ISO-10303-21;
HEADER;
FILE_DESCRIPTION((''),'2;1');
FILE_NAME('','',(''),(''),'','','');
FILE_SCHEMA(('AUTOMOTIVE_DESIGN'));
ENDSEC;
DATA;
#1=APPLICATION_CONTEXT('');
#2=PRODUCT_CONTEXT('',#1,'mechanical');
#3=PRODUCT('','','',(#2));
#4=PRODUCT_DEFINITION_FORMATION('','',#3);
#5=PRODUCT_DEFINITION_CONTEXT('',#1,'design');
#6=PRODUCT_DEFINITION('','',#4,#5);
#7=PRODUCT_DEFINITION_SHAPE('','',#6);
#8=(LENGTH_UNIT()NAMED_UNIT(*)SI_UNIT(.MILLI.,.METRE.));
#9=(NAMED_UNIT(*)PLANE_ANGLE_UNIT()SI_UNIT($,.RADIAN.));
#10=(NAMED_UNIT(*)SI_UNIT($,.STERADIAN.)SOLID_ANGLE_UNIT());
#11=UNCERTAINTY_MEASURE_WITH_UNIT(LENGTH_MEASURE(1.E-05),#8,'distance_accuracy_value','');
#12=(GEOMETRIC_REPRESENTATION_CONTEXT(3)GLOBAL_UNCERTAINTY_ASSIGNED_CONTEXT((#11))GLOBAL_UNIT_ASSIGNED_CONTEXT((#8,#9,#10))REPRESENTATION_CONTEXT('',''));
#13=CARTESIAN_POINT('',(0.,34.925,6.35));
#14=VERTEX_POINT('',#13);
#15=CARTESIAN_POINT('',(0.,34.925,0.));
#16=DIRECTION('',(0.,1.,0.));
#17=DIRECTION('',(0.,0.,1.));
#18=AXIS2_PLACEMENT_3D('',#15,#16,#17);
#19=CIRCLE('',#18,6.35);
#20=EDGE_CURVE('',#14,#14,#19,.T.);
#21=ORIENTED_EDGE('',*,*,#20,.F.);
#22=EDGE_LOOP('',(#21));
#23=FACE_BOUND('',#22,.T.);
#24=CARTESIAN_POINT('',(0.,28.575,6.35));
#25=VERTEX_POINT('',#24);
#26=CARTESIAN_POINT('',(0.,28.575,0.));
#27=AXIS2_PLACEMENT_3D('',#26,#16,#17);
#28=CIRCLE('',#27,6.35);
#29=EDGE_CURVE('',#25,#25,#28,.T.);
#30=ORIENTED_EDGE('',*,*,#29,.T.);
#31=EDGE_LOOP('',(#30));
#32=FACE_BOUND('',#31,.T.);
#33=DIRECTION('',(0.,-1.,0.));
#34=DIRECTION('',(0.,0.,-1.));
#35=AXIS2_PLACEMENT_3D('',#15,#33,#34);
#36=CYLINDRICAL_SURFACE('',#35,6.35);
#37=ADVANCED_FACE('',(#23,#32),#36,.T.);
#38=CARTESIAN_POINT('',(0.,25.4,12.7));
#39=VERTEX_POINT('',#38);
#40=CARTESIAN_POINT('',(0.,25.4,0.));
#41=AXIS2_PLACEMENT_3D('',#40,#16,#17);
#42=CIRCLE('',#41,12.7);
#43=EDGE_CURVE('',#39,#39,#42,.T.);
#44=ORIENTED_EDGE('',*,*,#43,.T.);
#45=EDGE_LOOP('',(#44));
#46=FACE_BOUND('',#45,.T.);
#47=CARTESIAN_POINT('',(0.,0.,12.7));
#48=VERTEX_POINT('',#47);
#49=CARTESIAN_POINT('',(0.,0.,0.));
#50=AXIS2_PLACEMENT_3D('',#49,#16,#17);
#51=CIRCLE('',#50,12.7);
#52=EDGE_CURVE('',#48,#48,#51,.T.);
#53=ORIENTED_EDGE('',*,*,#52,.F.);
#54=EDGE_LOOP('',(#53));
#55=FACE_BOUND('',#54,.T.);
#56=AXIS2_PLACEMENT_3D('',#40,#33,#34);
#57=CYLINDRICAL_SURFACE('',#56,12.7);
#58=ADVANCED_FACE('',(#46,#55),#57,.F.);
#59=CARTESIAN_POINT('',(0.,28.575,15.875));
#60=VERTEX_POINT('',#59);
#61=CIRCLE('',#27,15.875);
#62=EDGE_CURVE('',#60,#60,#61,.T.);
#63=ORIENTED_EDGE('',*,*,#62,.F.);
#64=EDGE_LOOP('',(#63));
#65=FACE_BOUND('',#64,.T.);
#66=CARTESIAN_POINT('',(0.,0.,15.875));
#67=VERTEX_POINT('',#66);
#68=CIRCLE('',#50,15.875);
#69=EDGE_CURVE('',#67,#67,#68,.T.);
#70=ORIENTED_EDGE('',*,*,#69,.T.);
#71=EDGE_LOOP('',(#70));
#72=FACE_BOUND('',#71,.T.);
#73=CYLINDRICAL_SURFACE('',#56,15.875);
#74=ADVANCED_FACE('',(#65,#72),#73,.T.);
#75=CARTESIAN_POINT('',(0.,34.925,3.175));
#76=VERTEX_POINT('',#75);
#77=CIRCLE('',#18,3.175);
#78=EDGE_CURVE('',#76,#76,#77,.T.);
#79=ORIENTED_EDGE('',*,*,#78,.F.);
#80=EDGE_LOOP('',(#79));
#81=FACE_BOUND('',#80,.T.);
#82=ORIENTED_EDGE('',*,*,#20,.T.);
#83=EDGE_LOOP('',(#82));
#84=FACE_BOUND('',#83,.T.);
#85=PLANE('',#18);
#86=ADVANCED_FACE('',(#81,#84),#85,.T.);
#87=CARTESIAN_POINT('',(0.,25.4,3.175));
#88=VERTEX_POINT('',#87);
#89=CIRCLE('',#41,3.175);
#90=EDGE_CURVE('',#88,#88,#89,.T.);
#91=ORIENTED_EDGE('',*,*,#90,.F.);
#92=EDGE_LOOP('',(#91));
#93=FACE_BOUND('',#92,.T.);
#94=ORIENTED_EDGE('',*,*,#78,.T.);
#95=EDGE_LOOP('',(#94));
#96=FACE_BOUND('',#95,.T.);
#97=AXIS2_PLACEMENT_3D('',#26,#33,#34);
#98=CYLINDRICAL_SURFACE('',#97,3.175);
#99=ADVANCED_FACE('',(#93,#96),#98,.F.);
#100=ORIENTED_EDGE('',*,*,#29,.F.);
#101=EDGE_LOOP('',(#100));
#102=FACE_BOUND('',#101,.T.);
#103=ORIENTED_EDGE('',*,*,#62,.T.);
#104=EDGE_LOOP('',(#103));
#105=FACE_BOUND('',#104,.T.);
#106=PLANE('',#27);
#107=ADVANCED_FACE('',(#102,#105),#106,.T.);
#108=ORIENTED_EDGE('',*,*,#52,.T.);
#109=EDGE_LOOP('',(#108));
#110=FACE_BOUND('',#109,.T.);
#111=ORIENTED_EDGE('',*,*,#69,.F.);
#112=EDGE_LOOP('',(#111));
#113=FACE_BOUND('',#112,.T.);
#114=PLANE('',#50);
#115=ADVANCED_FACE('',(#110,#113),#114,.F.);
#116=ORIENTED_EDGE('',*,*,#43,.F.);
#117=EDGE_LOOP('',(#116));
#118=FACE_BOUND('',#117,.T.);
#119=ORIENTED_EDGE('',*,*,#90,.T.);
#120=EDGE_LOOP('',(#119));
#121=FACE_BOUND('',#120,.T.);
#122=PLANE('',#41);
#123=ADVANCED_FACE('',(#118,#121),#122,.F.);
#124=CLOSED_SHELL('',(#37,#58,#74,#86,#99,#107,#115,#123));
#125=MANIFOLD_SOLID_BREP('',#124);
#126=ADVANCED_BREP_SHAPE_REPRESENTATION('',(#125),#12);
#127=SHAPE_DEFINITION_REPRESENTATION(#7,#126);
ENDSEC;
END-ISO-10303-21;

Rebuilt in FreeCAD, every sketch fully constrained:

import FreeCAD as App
import Part
import Sketcher
from FreeCAD import Vector
Q = App.Units.Quantity

doc = App.newDocument("Part")
body = doc.addObject("PartDesign::Body", "Body")

# Sketch on XZ plane
sketch1 = doc.addObject("Sketcher::SketchObject", "Sketch")
body.addObject(sketch1)
sketch1.AttachmentSupport = (doc.XZ_Plane, [""])
sketch1.MapMode = "FlatFace"
sketch1.addGeometry(Part.Circle(Vector(0, 0, 0), Vector(0, 0, 1), 15.875), False)
sketch1.addGeometry(Part.Circle(Vector(0, 0, 0), Vector(0, 0, 1), 12.7), False)
sketch1.addConstraint(Sketcher.Constraint("Coincident", 0, 3, -1, 1))
sketch1.addConstraint(Sketcher.Constraint("Coincident", 1, 3, -1, 1))
sketch1.addConstraint(Sketcher.Constraint("Diameter", 1, Q("1 in")))
sketch1.addConstraint(Sketcher.Constraint("Diameter", 0, Q("1.25 in")))
pad1 = doc.addObject("PartDesign::Pad", "Pad")
body.addObject(pad1)
pad1.Profile = sketch1
pad1.Length = Q("1 in")
pad1.Reversed = True

# Sketch on XZ plane
sketch2 = doc.addObject("Sketcher::SketchObject", "Sketch001")
body.addObject(sketch2)
sketch2.AttachmentSupport = (doc.XZ_Plane, [""])
sketch2.MapMode = "FlatFace"
sketch2.AttachmentOffset = App.Placement(Vector(0, 0, -1 * 25.4), App.Rotation())
sketch2.addGeometry(Part.Circle(Vector(0, 0, 0), Vector(0, 0, 1), 15.875), False)
sketch2.addGeometry(Part.Circle(Vector(0, 0, 0), Vector(0, 0, 1), 3.175), False)
sketch2.addConstraint(Sketcher.Constraint("Coincident", 0, 3, -1, 1))
sketch2.addConstraint(Sketcher.Constraint("Coincident", 1, 3, -1, 1))
sketch2.addConstraint(Sketcher.Constraint("Diameter", 0, Q("1.25 in")))
sketch2.addConstraint(Sketcher.Constraint("Diameter", 1, Q("0.25 in")))
pad2 = doc.addObject("PartDesign::Pad", "Pad001")
body.addObject(pad2)
pad2.Profile = sketch2
pad2.Length = Q("0.125 in")
pad2.Reversed = True

# Sketch on XZ plane
sketch3 = doc.addObject("Sketcher::SketchObject", "Sketch002")
body.addObject(sketch3)
sketch3.AttachmentSupport = (doc.XZ_Plane, [""])
sketch3.MapMode = "FlatFace"
sketch3.AttachmentOffset = App.Placement(Vector(0, 0, -1.125 * 25.4), App.Rotation())
sketch3.addGeometry(Part.Circle(Vector(0, 0, 0), Vector(0, 0, 1), 6.35), False)
sketch3.addGeometry(Part.Circle(Vector(0, 0, 0), Vector(0, 0, 1), 3.175), False)
sketch3.addConstraint(Sketcher.Constraint("Coincident", 0, 3, -1, 1))
sketch3.addConstraint(Sketcher.Constraint("Coincident", 1, 3, -1, 1))
sketch3.addConstraint(Sketcher.Constraint("Diameter", 0, Q("0.5 in")))
sketch3.addConstraint(Sketcher.Constraint("Diameter", 1, Q("0.25 in")))
pad3 = doc.addObject("PartDesign::Pad", "Pad002")
body.addObject(pad3)
pad3.Profile = sketch3
pad3.Length = Q("0.25 in")
pad3.Reversed = True

doc.recompute()
